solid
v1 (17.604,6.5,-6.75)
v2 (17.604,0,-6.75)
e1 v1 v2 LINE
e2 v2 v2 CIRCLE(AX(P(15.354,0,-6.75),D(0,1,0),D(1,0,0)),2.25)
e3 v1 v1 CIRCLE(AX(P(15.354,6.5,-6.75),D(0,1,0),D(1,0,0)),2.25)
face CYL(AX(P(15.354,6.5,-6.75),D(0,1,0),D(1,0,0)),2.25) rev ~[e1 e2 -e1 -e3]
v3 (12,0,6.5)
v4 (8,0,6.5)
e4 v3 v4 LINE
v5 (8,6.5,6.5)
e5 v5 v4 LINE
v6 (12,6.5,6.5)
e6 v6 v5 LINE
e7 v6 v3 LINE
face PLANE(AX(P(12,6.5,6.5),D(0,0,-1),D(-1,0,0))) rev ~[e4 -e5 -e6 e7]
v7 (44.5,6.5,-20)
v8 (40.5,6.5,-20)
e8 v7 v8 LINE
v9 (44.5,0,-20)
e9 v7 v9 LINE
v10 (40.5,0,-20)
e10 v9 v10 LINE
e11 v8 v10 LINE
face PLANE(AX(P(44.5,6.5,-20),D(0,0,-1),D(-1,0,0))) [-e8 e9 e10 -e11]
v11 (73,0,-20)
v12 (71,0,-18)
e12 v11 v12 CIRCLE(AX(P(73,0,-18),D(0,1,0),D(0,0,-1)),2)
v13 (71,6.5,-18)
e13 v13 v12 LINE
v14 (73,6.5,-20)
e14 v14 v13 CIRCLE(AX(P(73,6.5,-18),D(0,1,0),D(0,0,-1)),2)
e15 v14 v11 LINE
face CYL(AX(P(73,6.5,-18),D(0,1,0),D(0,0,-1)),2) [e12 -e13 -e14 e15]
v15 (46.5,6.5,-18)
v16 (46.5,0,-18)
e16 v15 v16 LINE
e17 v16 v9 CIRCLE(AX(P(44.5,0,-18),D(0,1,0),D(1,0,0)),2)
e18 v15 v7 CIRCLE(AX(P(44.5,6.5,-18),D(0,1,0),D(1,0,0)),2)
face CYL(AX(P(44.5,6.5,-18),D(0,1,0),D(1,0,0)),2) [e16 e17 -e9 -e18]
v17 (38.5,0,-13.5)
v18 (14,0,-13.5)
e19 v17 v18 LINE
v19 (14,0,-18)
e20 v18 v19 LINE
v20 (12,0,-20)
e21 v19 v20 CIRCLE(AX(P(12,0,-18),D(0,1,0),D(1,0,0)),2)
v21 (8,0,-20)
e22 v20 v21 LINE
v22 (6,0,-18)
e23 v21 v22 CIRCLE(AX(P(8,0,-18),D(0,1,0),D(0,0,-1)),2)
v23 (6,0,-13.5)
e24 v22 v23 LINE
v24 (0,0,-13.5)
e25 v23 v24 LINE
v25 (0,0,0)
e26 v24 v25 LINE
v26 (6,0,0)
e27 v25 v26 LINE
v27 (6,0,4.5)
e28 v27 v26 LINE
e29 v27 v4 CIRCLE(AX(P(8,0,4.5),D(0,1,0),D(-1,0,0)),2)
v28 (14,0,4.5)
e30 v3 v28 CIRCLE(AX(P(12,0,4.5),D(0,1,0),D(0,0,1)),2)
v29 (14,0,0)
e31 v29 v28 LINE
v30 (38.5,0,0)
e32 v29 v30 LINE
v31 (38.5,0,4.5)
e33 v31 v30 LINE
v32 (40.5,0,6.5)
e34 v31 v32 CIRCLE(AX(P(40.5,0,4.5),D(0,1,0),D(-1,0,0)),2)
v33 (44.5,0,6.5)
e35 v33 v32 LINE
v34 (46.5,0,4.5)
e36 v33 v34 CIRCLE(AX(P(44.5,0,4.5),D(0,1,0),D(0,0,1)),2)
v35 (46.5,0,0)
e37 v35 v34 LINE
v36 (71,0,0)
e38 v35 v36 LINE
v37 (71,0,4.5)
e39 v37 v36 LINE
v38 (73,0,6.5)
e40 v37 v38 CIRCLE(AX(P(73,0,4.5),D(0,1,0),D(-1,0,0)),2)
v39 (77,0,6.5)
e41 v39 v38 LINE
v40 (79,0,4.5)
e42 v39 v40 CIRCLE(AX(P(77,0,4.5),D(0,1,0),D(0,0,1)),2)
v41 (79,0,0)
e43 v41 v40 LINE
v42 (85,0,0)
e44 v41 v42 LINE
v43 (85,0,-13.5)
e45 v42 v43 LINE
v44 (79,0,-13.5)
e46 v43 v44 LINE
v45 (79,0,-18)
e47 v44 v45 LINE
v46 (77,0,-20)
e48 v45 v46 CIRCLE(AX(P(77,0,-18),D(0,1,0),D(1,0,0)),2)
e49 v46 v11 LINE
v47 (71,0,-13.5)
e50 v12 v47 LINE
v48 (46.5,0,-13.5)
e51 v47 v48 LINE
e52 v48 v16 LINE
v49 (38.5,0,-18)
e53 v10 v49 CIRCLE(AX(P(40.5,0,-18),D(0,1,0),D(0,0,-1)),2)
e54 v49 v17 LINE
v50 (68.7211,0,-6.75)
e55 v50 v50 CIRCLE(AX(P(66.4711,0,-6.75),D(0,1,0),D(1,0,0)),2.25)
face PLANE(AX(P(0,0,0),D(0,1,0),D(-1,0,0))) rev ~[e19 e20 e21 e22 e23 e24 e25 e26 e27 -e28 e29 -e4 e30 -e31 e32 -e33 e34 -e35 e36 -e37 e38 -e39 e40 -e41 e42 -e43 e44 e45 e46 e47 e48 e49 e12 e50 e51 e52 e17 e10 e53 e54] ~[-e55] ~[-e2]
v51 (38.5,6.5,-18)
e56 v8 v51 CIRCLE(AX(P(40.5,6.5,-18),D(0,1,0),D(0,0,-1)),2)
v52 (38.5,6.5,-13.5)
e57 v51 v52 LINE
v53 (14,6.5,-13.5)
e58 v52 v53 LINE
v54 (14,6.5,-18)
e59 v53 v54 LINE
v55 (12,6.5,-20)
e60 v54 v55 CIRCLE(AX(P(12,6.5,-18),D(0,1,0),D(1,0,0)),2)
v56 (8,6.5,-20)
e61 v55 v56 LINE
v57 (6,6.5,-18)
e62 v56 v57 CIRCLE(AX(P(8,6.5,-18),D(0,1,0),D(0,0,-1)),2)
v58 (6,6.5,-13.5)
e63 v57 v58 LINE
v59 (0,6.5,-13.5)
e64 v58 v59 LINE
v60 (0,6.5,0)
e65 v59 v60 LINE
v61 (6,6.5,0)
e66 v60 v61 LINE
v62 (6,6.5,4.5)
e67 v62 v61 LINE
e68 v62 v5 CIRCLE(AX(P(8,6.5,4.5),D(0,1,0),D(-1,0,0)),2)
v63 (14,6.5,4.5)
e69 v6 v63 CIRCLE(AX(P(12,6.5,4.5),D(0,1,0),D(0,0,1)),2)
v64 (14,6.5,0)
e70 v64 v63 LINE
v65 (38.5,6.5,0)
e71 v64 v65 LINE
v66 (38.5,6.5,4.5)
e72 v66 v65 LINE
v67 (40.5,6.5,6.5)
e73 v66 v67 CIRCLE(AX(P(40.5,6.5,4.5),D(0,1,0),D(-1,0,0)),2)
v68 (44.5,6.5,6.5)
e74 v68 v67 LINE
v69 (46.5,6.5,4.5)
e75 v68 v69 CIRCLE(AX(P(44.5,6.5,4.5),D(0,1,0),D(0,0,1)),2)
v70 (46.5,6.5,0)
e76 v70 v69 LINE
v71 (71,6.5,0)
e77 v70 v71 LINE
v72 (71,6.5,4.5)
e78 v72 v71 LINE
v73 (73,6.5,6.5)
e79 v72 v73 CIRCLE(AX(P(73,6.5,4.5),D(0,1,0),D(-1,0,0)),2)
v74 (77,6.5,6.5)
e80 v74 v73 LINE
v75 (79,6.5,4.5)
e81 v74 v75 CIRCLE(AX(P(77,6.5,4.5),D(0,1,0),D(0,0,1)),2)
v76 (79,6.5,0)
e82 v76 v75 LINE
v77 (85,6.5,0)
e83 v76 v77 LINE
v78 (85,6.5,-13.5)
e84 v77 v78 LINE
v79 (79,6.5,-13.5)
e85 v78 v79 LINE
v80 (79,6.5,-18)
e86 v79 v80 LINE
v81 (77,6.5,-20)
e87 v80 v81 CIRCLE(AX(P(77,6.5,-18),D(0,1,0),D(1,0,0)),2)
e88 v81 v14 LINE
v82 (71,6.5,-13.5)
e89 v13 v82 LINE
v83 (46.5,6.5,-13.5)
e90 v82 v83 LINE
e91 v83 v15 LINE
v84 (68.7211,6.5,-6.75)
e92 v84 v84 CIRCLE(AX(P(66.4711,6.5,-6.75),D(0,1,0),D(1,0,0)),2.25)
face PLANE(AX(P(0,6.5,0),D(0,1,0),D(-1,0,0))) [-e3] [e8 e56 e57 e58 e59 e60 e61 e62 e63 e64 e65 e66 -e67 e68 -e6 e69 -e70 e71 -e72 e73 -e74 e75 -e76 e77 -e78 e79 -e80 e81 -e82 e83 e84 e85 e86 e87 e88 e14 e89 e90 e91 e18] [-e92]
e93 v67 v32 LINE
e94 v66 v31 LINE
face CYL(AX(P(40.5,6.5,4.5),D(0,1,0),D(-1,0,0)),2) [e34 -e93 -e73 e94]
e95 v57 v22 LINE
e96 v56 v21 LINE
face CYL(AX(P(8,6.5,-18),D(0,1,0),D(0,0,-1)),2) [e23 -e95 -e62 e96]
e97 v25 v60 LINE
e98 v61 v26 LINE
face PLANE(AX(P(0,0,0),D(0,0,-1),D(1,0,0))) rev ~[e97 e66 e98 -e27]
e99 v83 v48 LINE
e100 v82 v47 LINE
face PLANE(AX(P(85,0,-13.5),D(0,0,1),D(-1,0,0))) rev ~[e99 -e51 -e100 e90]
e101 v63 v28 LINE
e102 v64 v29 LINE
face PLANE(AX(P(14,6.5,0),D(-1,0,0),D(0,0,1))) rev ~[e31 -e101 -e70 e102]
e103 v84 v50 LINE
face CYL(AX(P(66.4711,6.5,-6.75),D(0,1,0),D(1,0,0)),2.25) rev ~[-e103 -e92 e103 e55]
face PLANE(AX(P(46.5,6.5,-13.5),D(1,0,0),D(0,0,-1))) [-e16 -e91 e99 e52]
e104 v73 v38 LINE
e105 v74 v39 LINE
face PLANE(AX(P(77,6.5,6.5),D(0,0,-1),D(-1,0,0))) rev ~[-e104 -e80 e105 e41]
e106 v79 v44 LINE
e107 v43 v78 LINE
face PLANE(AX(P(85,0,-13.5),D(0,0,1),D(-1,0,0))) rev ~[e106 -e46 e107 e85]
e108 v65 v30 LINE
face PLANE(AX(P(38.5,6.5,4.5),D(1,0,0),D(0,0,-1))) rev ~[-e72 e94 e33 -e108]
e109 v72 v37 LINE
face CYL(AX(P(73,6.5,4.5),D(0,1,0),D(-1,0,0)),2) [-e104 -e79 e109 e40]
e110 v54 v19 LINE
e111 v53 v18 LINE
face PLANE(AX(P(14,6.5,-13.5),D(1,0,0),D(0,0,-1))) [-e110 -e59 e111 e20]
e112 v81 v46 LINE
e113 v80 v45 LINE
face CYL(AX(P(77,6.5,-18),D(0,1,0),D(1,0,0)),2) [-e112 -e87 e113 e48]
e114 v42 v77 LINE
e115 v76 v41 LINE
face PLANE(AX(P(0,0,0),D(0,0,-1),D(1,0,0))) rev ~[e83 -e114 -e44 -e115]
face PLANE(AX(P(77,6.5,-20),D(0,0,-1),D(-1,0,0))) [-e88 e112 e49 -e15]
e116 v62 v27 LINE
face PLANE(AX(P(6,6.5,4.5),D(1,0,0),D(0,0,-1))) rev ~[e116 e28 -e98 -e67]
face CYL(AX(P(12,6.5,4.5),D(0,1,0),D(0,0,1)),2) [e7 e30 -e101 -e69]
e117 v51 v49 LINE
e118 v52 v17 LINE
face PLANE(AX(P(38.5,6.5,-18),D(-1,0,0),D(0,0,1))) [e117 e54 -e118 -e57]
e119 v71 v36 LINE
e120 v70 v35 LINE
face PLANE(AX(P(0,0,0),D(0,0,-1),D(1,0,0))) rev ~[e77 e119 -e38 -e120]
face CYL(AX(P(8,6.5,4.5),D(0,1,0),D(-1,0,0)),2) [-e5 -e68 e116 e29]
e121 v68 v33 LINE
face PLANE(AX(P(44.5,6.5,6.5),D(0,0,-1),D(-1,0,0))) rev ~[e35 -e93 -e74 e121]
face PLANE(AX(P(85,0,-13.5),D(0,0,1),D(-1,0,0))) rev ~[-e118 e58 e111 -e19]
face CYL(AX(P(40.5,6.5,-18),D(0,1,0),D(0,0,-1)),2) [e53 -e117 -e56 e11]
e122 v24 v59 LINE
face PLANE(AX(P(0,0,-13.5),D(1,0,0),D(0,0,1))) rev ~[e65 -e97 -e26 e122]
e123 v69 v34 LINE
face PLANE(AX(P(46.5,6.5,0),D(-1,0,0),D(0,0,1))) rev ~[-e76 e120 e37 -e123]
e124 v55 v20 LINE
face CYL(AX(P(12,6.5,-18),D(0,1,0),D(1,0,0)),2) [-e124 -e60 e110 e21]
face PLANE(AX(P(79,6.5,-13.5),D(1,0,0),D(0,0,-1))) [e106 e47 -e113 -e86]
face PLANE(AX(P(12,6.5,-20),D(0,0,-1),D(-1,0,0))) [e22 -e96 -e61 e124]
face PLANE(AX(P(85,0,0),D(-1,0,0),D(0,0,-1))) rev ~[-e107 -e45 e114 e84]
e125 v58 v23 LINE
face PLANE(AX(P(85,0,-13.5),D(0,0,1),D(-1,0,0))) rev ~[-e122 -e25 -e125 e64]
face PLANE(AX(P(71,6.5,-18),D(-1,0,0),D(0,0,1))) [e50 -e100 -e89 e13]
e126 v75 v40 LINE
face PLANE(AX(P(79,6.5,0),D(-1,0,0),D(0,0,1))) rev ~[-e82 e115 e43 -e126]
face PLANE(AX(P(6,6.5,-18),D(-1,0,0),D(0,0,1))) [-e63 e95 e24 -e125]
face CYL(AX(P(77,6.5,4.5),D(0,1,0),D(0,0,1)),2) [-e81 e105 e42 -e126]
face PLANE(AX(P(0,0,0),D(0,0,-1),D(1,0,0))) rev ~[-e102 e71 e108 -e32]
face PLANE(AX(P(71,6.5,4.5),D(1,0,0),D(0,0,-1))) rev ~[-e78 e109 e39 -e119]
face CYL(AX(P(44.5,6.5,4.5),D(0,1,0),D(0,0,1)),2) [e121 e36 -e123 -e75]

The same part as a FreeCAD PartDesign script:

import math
import FreeCAD as App
import Part
import Sketcher

doc = App.newDocument("Part")
params = doc.addObject("Spreadsheet::Sheet", "Params")
for row, (alias, value) in enumerate([
    ("sketch1_width", "85 mm"),
    ("sketch1_height", "13.5 mm"),
    ("pad1_length", "6.5 mm"),
    ("sketch2_radius", "2 mm"),
    ("sketch2_width", "8 mm"),
    ("pad2_length", "6.5 mm"),
    ("sketch3_diameter", "4.5 mm"),
    ("sketch4_diameter", "4.5 mm"),
], start=1):
    params.set(f"A{row}", alias)
    params.set(f"B{row}", "=" + value)
    params.setAlias(f"B{row}", alias)

body = doc.addObject("PartDesign::Body", "Body")

# Sketch on XZ plane
sketch1 = body.newObject("Sketcher::SketchObject", "Sketch")
sketch1.AttachmentSupport = (doc.getObject("XZ_Plane"), [""])
sketch1.MapMode = "FlatFace"
sketch1.addGeometry(Part.LineSegment(App.Vector(0, -13.5, 0), App.Vector(0, 0, 0)), False)
sketch1.addGeometry(Part.LineSegment(App.Vector(0, 0, 0), App.Vector(85, 0, 0)), False)
sketch1.addGeometry(Part.LineSegment(App.Vector(85, 0, 0), App.Vector(85, -13.5, 0)), False)
sketch1.addGeometry(Part.LineSegment(App.Vector(85, -13.5, 0), App.Vector(0, -13.5, 0)), False)
sketch1.addConstraint(Sketcher.Constraint("Coincident", 0, 2, 1, 1))
sketch1.addConstraint(Sketcher.Constraint("Coincident", 1, 2, 2, 1))
sketch1.addConstraint(Sketcher.Constraint("Coincident", 2, 2, 3, 1))
sketch1.addConstraint(Sketcher.Constraint("Coincident", 3, 2, 0, 1))
sketch1.addConstraint(Sketcher.Constraint("Vertical", 0))
sketch1.addConstraint(Sketcher.Constraint("Horizontal", 1))
sketch1.addConstraint(Sketcher.Constraint("Vertical", 2))
sketch1.addConstraint(Sketcher.Constraint("Horizontal", 3))
sketch1.addConstraint(Sketcher.Constraint("Coincident", 0, 2, -1, 1))
sketch1.addConstraint(Sketcher.Constraint("DistanceX", 1, 1, 1, 2, 85.0))
sketch1.addConstraint(Sketcher.Constraint("DistanceY", 0, 1, 0, 2, 13.5))
sketch1.setExpression("Constraints[9]", "Params.sketch1_width")
sketch1.setExpression("Constraints[10]", "Params.sketch1_height")
pad1 = body.newObject("PartDesign::Pad", "Pad")
pad1.Profile = sketch1
pad1.setExpression("Length", "Params.pad1_length")
pad1.Reversed = True

# Sketch on XZ plane
sketch2 = body.newObject("Sketcher::SketchObject", "Sketch001")
sketch2.AttachmentSupport = (doc.getObject("XZ_Plane"), [""])
sketch2.MapMode = "FlatFace"
sketch2.AttachmentOffset = App.Placement(App.Vector(0, 0, -6.5), App.Rotation())
sketch2.addGeometry(Part.LineSegment(App.Vector(14, 0, 0), App.Vector(6, 0, 0)), False)
sketch2.addGeometry(Part.LineSegment(App.Vector(6, 0, 0), App.Vector(6, 4.5, 0)), False)
sketch2.addGeometry(Part.ArcOfCircle(Part.Circle(App.Vector(8, 4.5, 0), App.Vector(0, 0, 1), 2), math.radians(90), math.radians(180)), False)
sketch2.addGeometry(Part.LineSegment(App.Vector(8, 6.5, 0), App.Vector(12, 6.5, 0)), False)
sketch2.addGeometry(Part.ArcOfCircle(Part.Circle(App.Vector(12, 4.5, 0), App.Vector(0, 0, 1), 2), math.radians(0), math.radians(90)), False)
sketch2.addGeometry(Part.LineSegment(App.Vector(14, 4.5, 0), App.Vector(14, 0, 0)), False)
sketch2.addGeometry(Part.LineSegment(App.Vector(6, -18, 0), App.Vector(6, -13.5, 0)), False)
sketch2.addGeometry(Part.LineSegment(App.Vector(6, -13.5, 0), App.Vector(14, -13.5, 0)), False)
sketch2.addGeometry(Part.LineSegment(App.Vector(14, -13.5, 0), App.Vector(14, -18, 0)), False)
sketch2.addGeometry(Part.ArcOfCircle(Part.Circle(App.Vector(12, -18, 0), App.Vector(0, 0, 1), 2), math.radians(-90), math.radians(0)), False)
sketch2.addGeometry(Part.LineSegment(App.Vector(12, -20, 0), App.Vector(8, -20, 0)), False)
sketch2.addGeometry(Part.ArcOfCircle(Part.Circle(App.Vector(8, -18, 0), App.Vector(0, 0, 1), 2), math.radians(180), math.radians(270)), False)
sketch2.addGeometry(Part.LineSegment(App.Vector(46.5, 0, 0), App.Vector(38.5, 0, 0)), False)
sketch2.addGeometry(Part.LineSegment(App.Vector(38.5, 0, 0), App.Vector(38.5, 4.5, 0)), False)
sketch2.addGeometry(Part.ArcOfCircle(Part.Circle(App.Vector(40.5, 4.5, 0), App.Vector(0, 0, 1), 2), math.radians(90), math.radians(180)), False)
sketch2.addGeometry(Part.LineSegment(App.Vector(40.5, 6.5, 0), App.Vector(44.5, 6.5, 0)), False)
sketch2.addGeometry(Part.ArcOfCircle(Part.Circle(App.Vector(44.5, 4.5, 0), App.Vector(0, 0, 1), 2), math.radians(0), math.radians(90)), False)
sketch2.addGeometry(Part.LineSegment(App.Vector(46.5, 4.5, 0), App.Vector(46.5, 0, 0)), False)
sketch2.addGeometry(Part.LineSegment(App.Vector(38.5, -18, 0), App.Vector(38.5, -13.5, 0)), False)
sketch2.addGeometry(Part.LineSegment(App.Vector(38.5, -13.5, 0), App.Vector(46.5, -13.5, 0)), False)
sketch2.addGeometry(Part.LineSegment(App.Vector(46.5, -13.5, 0), App.Vector(46.5, -18, 0)), False)
sketch2.addGeometry(Part.ArcOfCircle(Part.Circle(App.Vector(44.5, -18, 0), App.Vector(0, 0, 1), 2), math.radians(-90), math.radians(0)), False)
sketch2.addGeometry(Part.LineSegment(App.Vector(44.5, -20, 0), App.Vector(40.5, -20, 0)), False)
sketch2.addGeometry(Part.ArcOfCircle(Part.Circle(App.Vector(40.5, -18, 0), App.Vector(0, 0, 1), 2), math.radians(180), math.radians(270)), False)
sketch2.addGeometry(Part.LineSegment(App.Vector(79, 0, 0), App.Vector(71, 0, 0)), False)
sketch2.addGeometry(Part.LineSegment(App.Vector(71, 0, 0), App.Vector(71, 4.5, 0)), False)
sketch2.addGeometry(Part.ArcOfCircle(Part.Circle(App.Vector(73, 4.5, 0), App.Vector(0, 0, 1), 2), math.radians(90), math.radians(180)), False)
sketch2.addGeometry(Part.LineSegment(App.Vector(73, 6.5, 0), App.Vector(77, 6.5, 0)), False)
sketch2.addGeometry(Part.ArcOfCircle(Part.Circle(App.Vector(77, 4.5, 0), App.Vector(0, 0, 1), 2), math.radians(0), math.radians(90)), False)
sketch2.addGeometry(Part.LineSegment(App.Vector(79, 4.5, 0), App.Vector(79, 0, 0)), False)
sketch2.addGeometry(Part.LineSegment(App.Vector(71, -18, 0), App.Vector(71, -13.5, 0)), False)
sketch2.addGeometry(Part.LineSegment(App.Vector(71, -13.5, 0), App.Vector(79, -13.5, 0)), False)
sketch2.addGeometry(Part.LineSegment(App.Vector(79, -13.5, 0), App.Vector(79, -18, 0)), False)
sketch2.addGeometry(Part.ArcOfCircle(Part.Circle(App.Vector(77, -18, 0), App.Vector(0, 0, 1), 2), math.radians(-90), math.radians(0)), False)
sketch2.addGeometry(Part.LineSegment(App.Vector(77, -20, 0), App.Vector(73, -20, 0)), False)
sketch2.addGeometry(Part.ArcOfCircle(Part.Circle(App.Vector(73, -18, 0), App.Vector(0, 0, 1), 2), math.radians(180), math.radians(270)), False)
sketch2.addConstraint(Sketcher.Constraint("Coincident", 0, 2, 1, 1))
sketch2.addConstraint(Sketcher.Constraint("Tangent", 1, 2, 2, 2))
sketch2.addConstraint(Sketcher.Constraint("Tangent", 2, 1, 3, 1))
sketch2.addConstraint(Sketcher.Constraint("Tangent", 3, 2, 4, 2))
sketch2.addConstraint(Sketcher.Constraint("Tangent", 4, 1, 5, 1))
sketch2.addConstraint(Sketcher.Constraint("Coincident", 5, 2, 0, 1))
sketch2.addConstraint(Sketcher.Constraint("Coincident", 6, 2, 7, 1))
sketch2.addConstraint(Sketcher.Constraint("Coincident", 7, 2, 8, 1))
sketch2.addConstraint(Sketcher.Constraint("Tangent", 8, 2, 9, 2))
sketch2.addConstraint(Sketcher.Constraint("Tangent", 9, 1, 10, 1))
sketch2.addConstraint(Sketcher.Constraint("Tangent", 10, 2, 11, 2))
sketch2.addConstraint(Sketcher.Constraint("Tangent", 11, 1, 6, 1))
sketch2.addConstraint(Sketcher.Constraint("Coincident", 12, 2, 13, 1))
sketch2.addConstraint(Sketcher.Constraint("Tangent", 13, 2, 14, 2))
sketch2.addConstraint(Sketcher.Constraint("Tangent", 14, 1, 15, 1))
sketch2.addConstraint(Sketcher.Constraint("Tangent", 15, 2, 16, 2))
sketch2.addConstraint(Sketcher.Constraint("Tangent", 16, 1, 17, 1))
sketch2.addConstraint(Sketcher.Constraint("Coincident", 17, 2, 12, 1))
sketch2.addConstraint(Sketcher.Constraint("Coincident", 18, 2, 19, 1))
sketch2.addConstraint(Sketcher.Constraint("Coincident", 19, 2, 20, 1))
sketch2.addConstraint(Sketcher.Constraint("Tangent", 20, 2, 21, 2))
sketch2.addConstraint(Sketcher.Constraint("Tangent", 21, 1, 22, 1))
sketch2.addConstraint(Sketcher.Constraint("Tangent", 22, 2, 23, 2))
sketch2.addConstraint(Sketcher.Constraint("Tangent", 23, 1, 18, 1))
sketch2.addConstraint(Sketcher.Constraint("Coincident", 24, 2, 25, 1))
sketch2.addConstraint(Sketcher.Constraint("Tangent", 25, 2, 26, 2))
sketch2.addConstraint(Sketcher.Constraint("Tangent", 26, 1, 27, 1))
sketch2.addConstraint(Sketcher.Constraint("Tangent", 27, 2, 28, 2))
sketch2.addConstraint(Sketcher.Constraint("Tangent", 28, 1, 29, 1))
sketch2.addConstraint(Sketcher.Constraint("Coincident", 29, 2, 24, 1))
sketch2.addConstraint(Sketcher.Constraint("Coincident", 30, 2, 31, 1))
sketch2.addConstraint(Sketcher.Constraint("Coincident", 31, 2, 32, 1))
sketch2.addConstraint(Sketcher.Constraint("Tangent", 32, 2, 33, 2))
sketch2.addConstraint(Sketcher.Constraint("Tangent", 33, 1, 34, 1))
sketch2.addConstraint(Sketcher.Constraint("Tangent", 34, 2, 35, 2))
sketch2.addConstraint(Sketcher.Constraint("Tangent", 35, 1, 30, 1))
sketch2.addConstraint(Sketcher.Constraint("Horizontal", 0))
sketch2.addConstraint(Sketcher.Constraint("Vertical", 1))
sketch2.addConstraint(Sketcher.Constraint("Horizontal", 3))
sketch2.addConstraint(Sketcher.Constraint("Vertical", 5))
sketch2.addConstraint(Sketcher.Constraint("Vertical", 6))
sketch2.addConstraint(Sketcher.Constraint("Horizontal", 7))
sketch2.addConstraint(Sketcher.Constraint("Vertical", 8))
sketch2.addConstraint(Sketcher.Constraint("Horizontal", 10))
sketch2.addConstraint(Sketcher.Constraint("Horizontal", 12))
sketch2.addConstraint(Sketcher.Constraint("Vertical", 13))
sketch2.addConstraint(Sketcher.Constraint("Horizontal", 15))
sketch2.addConstraint(Sketcher.Constraint("Vertical", 17))
sketch2.addConstraint(Sketcher.Constraint("Vertical", 18))
sketch2.addConstraint(Sketcher.Constraint("Horizontal", 19))
sketch2.addConstraint(Sketcher.Constraint("Vertical", 20))
sketch2.addConstraint(Sketcher.Constraint("Horizontal", 22))
sketch2.addConstraint(Sketcher.Constraint("Horizontal", 24))
sketch2.addConstraint(Sketcher.Constraint("Vertical", 25))
sketch2.addConstraint(Sketcher.Constraint("Horizontal", 27))
sketch2.addConstraint(Sketcher.Constraint("Vertical", 29))
sketch2.addConstraint(Sketcher.Constraint("Vertical", 30))
sketch2.addConstraint(Sketcher.Constraint("Horizontal", 31))
sketch2.addConstraint(Sketcher.Constraint("Vertical", 32))
sketch2.addConstraint(Sketcher.Constraint("Horizontal", 34))
sketch2.addConstraint(Sketcher.Constraint("Equal", 2, 4))
sketch2.addConstraint(Sketcher.Constraint("Equal", 4, 9))
sketch2.addConstraint(Sketcher.Constraint("Equal", 9, 11))
sketch2.addConstraint(Sketcher.Constraint("Equal", 11, 14))
sketch2.addConstraint(Sketcher.Constraint("Equal", 14, 16))
sketch2.addConstraint(Sketcher.Constraint("Equal", 16, 21))
sketch2.addConstraint(Sketcher.Constraint("Equal", 21, 23))
sketch2.addConstraint(Sketcher.Constraint("Equal", 23, 26))
sketch2.addConstraint(Sketcher.Constraint("Equal", 26, 28))
sketch2.addConstraint(Sketcher.Constraint("Equal", 28, 33))
sketch2.addConstraint(Sketcher.Constraint("Equal", 33, 35))
sketch2.addConstraint(Sketcher.Constraint("PointOnObject", 0, 2, -1))
sketch2.addConstraint(Sketcher.Constraint("PointOnObject", 12, 2, -1))
sketch2.addConstraint(Sketcher.Constraint("PointOnObject", 24, 2, -1))
sketch2.addConstraint(Sketcher.Constraint("Horizontal", 4, 3, 14, 3))
sketch2.addConstraint(Sketcher.Constraint("Horizontal", 11, 3, 21, 3))
sketch2.addConstraint(Sketcher.Constraint("Horizontal", 16, 3, 26, 3))
sketch2.addConstraint(Sketcher.Constraint("Horizontal", 23, 3, 33, 3))
sketch2.addConstraint(Sketcher.Constraint("Horizontal", 7, 2, 18, 2))
sketch2.addConstraint(Sketcher.Constraint("Horizontal", 19, 2, 30, 2))
sketch2.addConstraint(Sketcher.Constraint("Vertical", 4, 3, 9, 3))
sketch2.addConstraint(Sketcher.Constraint("Vertical", 2, 3, 11, 3))
sketch2.addConstraint(Sketcher.Constraint("Vertical", 16, 3, 21, 3))
sketch2.addConstraint(Sketcher.Constraint("Vertical", 14, 3, 23, 3))
sketch2.addConstraint(Sketcher.Constraint("Vertical", 28, 3, 33, 3))
sketch2.addConstraint(Sketcher.Constraint("Vertical", 26, 3, 35, 3))
sketch2.addConstraint(Sketcher.Constraint("Equal", 7, 12))
sketch2.addConstraint(Sketcher.Constraint("Equal", 19, 24))
sketch2.addConstraint(Sketcher.Constraint("Equal", 5, 6))
sketch2.addConstraint(Sketcher.Constraint("Radius", 2, 2.0))
sketch2.addConstraint(Sketcher.Constraint("DistanceX", 0, 2, 0, 1, 8.0))
sketch2.addConstraint(Sketcher.Constraint("DistanceX", -1, 1, 2, 3, 8.0))
sketch2.addConstraint(Sketcher.Constraint("DistanceY", -1, 1, 2, 1, 6.5))
sketch2.addConstraint(Sketcher.Constraint("DistanceY", 9, 3, -1, 1, 18.0))
sketch2.addConstraint(Sketcher.Constraint("DistanceX", -1, 1, 26, 3, 73.0))
sketch2.addConstraint(Sketcher.Constraint("DistanceX", -1, 1, 14, 3, 40.5))
sketch2.setExpression("Constraints[89]", "Params.sketch2_radius")
sketch2.setExpression("Constraints[90]", "Params.sketch2_width")
pad2 = body.newObject("PartDesign::Pad", "Pad001")
pad2.Profile = sketch2
pad2.setExpression("Length", "Params.pad2_length")

# Sketch on XZ plane
sketch3 = body.newObject("Sketcher::SketchObject", "Sketch002")
sketch3.AttachmentSupport = (doc.getObject("XZ_Plane"), [""])
sketch3.MapMode = "FlatFace"
sketch3.AttachmentOffset = App.Placement(App.Vector(0, 0, -6.5), App.Rotation())
sketch3.addGeometry(Part.Circle(App.Vector(66.4711, -6.75, 0), App.Vector(0, 0, 1), 2.25), False)
sketch3.addConstraint(Sketcher.Constraint("Diameter", 0, 4.5))
sketch3.addConstraint(Sketcher.Constraint("DistanceY", 0, 3, -1, 1, 6.75))
sketch3.addConstraint(Sketcher.Constraint("DistanceX", -1, 1, 0, 3, 66.471))
sketch3.setExpression("Constraints[0]", "Params.sketch3_diameter")
pocket1 = body.newObject("PartDesign::Pocket", "Pocket")
pocket1.Profile = sketch3
pocket1.Type = "ThroughAll"
pocket1.Reversed = True

# Sketch on XZ plane
sketch4 = body.newObject("Sketcher::SketchObject", "Sketch003")
sketch4.AttachmentSupport = (doc.getObject("XZ_Plane"), [""])
sketch4.MapMode = "FlatFace"
sketch4.AttachmentOffset = App.Placement(App.Vector(0, 0, -6.5), App.Rotation())
sketch4.addGeometry(Part.Circle(App.Vector(15.354, -6.75, 0), App.Vector(0, 0, 1), 2.25), False)
sketch4.addConstraint(Sketcher.Constraint("Diameter", 0, 4.5))
sketch4.addConstraint(Sketcher.Constraint("DistanceY", 0, 3, -1, 1, 6.75))
sketch4.addConstraint(Sketcher.Constraint("DistanceX", -1, 1, 0, 3, 15.354))
sketch4.setExpression("Constraints[0]", "Params.sketch4_diameter")
pocket2 = body.newObject("PartDesign::Pocket", "Pocket001")
pocket2.Profile = sketch4
pocket2.Type = "ThroughAll"
pocket2.Reversed = True

doc.recompute()
